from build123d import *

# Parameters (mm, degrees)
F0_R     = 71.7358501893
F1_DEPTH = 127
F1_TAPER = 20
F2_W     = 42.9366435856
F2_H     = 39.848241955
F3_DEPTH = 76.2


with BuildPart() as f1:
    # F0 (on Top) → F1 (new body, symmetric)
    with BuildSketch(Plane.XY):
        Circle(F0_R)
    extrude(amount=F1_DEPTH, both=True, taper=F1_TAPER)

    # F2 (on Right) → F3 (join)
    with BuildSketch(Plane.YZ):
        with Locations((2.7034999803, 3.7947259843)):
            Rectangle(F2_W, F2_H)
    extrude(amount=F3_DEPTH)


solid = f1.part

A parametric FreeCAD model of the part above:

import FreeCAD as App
import Part
import Sketcher
from FreeCAD import Vector
Q = App.Units.Quantity

doc = App.newDocument("Part")
params = doc.addObject("Spreadsheet::Sheet", "Params")
for row, (alias, value) in enumerate([
    ("pad1_length", "10 in"),
    ("pad1_taper", "-20 deg"),
    ("pad2_length", "3 in"),
], start=1):
    params.set(f"A{row}", alias)
    params.set(f"B{row}", "=" + value)
    params.setAlias(f"B{row}", alias)

body = doc.addObject("PartDesign::Body", "Body")

sketch1 = body.newObject("Sketcher::SketchObject", "Sketch")
sketch1.AttachmentSupport = (doc.getObject("XY_Plane"), [""])
sketch1.MapMode = "FlatFace"
sketch1.addGeometry(Part.Circle(Vector(0, 0, 0), Vector(0, 0, 1), 71.73585), False)
sketch1.addConstraint([
    Sketcher.Constraint("Coincident", 0, 3, -1, 1),
    Sketcher.Constraint("Diameter", 0, Q("143.4717 mm")),
])
pad1 = body.newObject("PartDesign::Pad", "Pad")
pad1.Profile = sketch1
pad1.setExpression("Length", "Params.pad1_length")
pad1.Midplane = True
pad1.setExpression("TaperAngle", "Params.pad1_taper")

sketch2 = body.newObject("Sketcher::SketchObject", "Sketch001")
sketch2.AttachmentSupport = (doc.getObject("YZ_Plane"), [""])
sketch2.MapMode = "FlatFace"
sketch2.addGeometry([
    Part.LineSegment(Vector(-18.764822, 23.718847, 0), Vector(-18.764822, -16.129395, 0)),
    Part.LineSegment(Vector(-18.764822, -16.129395, 0), Vector(24.171822, -16.129395, 0)),
    Part.LineSegment(Vector(24.171822, -16.129395, 0), Vector(24.171822, 23.718847, 0)),
    Part.LineSegment(Vector(24.171822, 23.718847, 0), Vector(-18.764822, 23.718847, 0)),
], False)
sketch2.addConstraint([
    Sketcher.Constraint("Coincident", 0, 2, 1, 1),
    Sketcher.Constraint("Coincident", 1, 2, 2, 1),
    Sketcher.Constraint("Coincident", 2, 2, 3, 1),
    Sketcher.Constraint("Coincident", 3, 2, 0, 1),
    Sketcher.Constraint("Vertical", 0),
    Sketcher.Constraint("Horizontal", 1),
    Sketcher.Constraint("Vertical", 2),
    Sketcher.Constraint("Horizontal", 3),
    Sketcher.Constraint("DistanceY", 0, 2, 0, 1, Q("39.848242 mm")),
    Sketcher.Constraint("DistanceX", 1, 1, 1, 2, Q("42.936644 mm")),
    Sketcher.Constraint("DistanceX", 0, 2, -1, 1, Q("18.764822 mm")),
    Sketcher.Constraint("DistanceY", 0, 2, -1, 1, Q("16.129395 mm")),
])
pad2 = body.newObject("PartDesign::Pad", "Pad001")
pad2.Profile = sketch2
pad2.setExpression("Length", "Params.pad2_length")

doc.recompute()
